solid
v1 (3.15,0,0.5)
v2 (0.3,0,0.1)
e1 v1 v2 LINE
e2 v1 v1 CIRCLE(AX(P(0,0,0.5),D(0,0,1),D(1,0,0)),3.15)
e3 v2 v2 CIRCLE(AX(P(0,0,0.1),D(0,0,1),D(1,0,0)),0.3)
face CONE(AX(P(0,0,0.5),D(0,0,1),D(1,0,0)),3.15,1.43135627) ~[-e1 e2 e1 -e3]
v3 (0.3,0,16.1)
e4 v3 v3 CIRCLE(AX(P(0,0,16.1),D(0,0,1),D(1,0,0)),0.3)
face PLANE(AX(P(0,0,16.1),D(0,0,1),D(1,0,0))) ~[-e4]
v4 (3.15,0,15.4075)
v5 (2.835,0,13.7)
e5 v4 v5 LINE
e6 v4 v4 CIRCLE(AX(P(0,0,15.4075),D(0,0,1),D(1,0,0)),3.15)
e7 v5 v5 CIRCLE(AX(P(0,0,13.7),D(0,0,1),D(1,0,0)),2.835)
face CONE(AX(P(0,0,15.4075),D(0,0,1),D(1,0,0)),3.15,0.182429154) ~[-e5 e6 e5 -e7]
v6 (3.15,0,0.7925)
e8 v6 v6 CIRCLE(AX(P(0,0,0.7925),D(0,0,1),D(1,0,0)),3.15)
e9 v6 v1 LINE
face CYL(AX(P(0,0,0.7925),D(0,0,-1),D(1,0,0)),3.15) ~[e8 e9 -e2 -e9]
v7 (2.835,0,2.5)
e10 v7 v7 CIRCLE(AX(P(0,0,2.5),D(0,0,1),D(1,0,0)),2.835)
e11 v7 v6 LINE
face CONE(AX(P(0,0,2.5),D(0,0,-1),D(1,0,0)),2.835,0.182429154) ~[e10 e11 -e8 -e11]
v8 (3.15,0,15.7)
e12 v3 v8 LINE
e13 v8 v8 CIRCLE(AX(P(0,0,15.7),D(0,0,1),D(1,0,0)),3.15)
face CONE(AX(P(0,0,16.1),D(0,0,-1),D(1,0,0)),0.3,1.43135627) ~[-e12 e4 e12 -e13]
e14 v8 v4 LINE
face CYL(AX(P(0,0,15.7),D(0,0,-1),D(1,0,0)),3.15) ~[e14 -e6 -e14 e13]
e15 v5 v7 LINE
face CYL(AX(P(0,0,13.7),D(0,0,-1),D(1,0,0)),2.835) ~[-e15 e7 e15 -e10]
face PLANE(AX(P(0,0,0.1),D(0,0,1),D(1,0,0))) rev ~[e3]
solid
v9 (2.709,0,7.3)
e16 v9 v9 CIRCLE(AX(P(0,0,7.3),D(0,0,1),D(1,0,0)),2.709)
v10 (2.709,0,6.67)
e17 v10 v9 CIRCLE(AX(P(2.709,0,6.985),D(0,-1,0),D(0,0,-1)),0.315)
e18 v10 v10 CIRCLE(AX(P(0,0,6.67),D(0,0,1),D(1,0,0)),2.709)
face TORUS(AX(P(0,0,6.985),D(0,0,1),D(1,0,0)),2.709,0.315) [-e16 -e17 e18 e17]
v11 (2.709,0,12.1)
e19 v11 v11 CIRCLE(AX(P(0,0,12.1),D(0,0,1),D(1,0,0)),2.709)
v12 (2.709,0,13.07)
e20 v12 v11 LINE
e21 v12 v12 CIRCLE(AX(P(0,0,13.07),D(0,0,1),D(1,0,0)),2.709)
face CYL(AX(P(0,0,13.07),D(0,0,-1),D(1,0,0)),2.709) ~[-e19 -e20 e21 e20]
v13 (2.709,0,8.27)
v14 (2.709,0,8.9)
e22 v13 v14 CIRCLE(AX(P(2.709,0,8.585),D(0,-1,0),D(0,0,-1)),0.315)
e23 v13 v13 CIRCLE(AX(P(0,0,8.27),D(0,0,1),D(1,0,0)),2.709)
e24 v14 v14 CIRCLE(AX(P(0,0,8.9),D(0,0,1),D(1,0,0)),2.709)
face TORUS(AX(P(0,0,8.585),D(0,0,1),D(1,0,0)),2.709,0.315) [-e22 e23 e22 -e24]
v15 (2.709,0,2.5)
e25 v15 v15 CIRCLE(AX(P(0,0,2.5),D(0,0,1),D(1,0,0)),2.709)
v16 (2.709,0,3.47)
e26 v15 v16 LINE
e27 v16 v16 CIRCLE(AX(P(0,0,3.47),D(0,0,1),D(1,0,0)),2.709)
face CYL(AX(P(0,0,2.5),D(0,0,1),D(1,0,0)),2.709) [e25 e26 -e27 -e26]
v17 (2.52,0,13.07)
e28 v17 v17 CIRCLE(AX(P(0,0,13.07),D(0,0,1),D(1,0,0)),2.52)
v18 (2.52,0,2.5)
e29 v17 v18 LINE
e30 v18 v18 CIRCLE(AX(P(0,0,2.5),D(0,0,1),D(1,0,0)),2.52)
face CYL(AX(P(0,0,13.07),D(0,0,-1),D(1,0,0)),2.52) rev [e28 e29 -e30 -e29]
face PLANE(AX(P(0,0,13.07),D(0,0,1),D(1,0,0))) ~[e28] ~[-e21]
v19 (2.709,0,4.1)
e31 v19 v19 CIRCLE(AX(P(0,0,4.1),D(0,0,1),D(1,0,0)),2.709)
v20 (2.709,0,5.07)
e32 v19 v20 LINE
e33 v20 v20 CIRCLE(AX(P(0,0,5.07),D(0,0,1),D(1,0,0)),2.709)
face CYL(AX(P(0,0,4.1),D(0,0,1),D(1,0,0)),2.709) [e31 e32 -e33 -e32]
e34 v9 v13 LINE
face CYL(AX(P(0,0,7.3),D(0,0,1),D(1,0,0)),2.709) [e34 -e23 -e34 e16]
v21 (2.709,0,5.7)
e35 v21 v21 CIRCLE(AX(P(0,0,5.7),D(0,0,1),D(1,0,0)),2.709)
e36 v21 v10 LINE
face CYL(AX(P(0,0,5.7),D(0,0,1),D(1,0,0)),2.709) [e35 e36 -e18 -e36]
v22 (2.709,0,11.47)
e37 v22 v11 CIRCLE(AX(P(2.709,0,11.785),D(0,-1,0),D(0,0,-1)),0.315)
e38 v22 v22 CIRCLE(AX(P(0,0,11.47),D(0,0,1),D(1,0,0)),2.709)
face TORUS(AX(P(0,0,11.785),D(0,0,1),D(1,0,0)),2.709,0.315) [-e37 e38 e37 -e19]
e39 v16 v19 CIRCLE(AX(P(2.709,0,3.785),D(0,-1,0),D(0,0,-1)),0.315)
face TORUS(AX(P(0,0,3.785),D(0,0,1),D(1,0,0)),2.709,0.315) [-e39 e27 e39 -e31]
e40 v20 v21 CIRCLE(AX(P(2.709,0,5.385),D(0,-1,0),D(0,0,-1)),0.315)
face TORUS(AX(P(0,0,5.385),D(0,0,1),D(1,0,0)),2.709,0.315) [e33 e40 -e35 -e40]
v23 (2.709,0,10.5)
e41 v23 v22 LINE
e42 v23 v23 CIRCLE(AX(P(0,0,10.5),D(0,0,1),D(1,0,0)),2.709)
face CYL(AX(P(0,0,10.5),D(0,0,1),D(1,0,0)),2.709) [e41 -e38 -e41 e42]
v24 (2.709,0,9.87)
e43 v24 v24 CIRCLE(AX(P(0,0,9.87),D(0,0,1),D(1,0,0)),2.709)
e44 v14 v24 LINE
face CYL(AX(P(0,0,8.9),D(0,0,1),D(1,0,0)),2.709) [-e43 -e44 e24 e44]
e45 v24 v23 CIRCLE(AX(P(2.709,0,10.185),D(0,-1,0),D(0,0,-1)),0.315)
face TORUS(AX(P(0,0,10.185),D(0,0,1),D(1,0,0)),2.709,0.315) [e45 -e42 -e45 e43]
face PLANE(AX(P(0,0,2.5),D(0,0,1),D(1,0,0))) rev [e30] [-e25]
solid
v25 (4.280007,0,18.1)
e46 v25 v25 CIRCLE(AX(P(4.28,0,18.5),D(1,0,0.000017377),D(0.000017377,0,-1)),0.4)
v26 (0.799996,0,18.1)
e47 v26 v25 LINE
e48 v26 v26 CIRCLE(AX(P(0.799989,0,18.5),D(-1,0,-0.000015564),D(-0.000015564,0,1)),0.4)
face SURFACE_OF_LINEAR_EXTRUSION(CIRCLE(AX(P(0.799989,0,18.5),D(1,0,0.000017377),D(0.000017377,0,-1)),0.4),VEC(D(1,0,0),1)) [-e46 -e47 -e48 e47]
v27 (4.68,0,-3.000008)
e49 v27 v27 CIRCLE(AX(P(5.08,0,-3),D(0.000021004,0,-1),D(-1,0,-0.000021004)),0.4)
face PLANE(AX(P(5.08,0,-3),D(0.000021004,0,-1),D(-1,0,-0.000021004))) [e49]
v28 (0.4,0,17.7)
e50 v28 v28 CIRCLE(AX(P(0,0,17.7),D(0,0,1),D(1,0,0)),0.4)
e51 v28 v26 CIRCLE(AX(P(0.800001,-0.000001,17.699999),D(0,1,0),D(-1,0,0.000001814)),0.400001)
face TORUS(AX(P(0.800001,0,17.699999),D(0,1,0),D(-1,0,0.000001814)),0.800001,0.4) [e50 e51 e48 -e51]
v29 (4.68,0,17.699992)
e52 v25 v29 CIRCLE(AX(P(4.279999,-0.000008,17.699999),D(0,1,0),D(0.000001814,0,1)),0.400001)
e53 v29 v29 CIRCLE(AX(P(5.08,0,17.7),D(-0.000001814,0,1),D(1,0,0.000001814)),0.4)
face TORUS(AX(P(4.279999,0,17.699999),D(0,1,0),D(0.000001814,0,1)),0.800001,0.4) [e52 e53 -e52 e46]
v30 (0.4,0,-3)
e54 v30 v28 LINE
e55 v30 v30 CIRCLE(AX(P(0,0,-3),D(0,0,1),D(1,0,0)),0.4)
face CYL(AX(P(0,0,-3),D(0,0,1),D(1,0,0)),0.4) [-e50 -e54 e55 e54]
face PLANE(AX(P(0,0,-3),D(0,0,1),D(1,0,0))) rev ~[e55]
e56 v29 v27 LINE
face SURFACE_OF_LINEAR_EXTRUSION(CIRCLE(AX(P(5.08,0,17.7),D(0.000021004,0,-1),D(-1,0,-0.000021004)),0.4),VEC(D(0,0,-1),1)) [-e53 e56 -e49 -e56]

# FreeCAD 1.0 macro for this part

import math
import FreeCAD as App
import Part
import Sketcher


def add_polygon(sketch, points):
    """Adds a closed chain of lines whose ends are joined by coincident constraints."""
    first, n = sketch.GeometryCount, len(points)
    for a, b in zip(points, points[1:] + points[:1]):
        sketch.addGeometry(Part.LineSegment(App.Vector(*a, 0), App.Vector(*b, 0)), False)
    for i in range(n):
        sketch.addConstraint(Sketcher.Constraint("Coincident", first + i, 2, first + (i + 1) % n, 1))

doc = App.newDocument("Part")
params = doc.addObject("Spreadsheet::Sheet", "Params")
for row, (alias, value) in enumerate([
    ("sketch1_diameter", "0.8 mm"),
    ("sketch2_radius", "0.800001 mm"),
    ("sketch2_height", "20.7 mm"),
    ("sketch3_height", "16 mm"),
    ("sketch3_width", "0.3 mm"),
    ("sketch3_height2", "11.2 mm"),
    ("revolution_angle", "360 deg"),
    ("revolution2_angle", "360 deg"),
], start=1):
    params.set(f"A{row}", alias)
    params.set(f"B{row}", "=" + value)
    params.setAlias(f"B{row}", alias)

body = doc.addObject("PartDesign::Body", "Body")

# Sketch on XY plane
sketch1 = body.newObject("Sketcher::SketchObject", "Sketch")
sketch1.AttachmentSupport = (doc.getObject("XY_Plane"), [""])
sketch1.MapMode = "FlatFace"
sketch1.AttachmentOffset = App.Placement(App.Vector(0, 0, -2), App.Rotation())
sketch1.addGeometry(Part.Circle(App.Vector(0, 0, 0), App.Vector(0, 0, 1), 0.4), False)
sketch1.addConstraint(Sketcher.Constraint("Coincident", 0, 3, -1, 1))
sketch1.addConstraint(Sketcher.Constraint("Diameter", 0, 0.8))
sketch1.setExpression("Constraints[1]", "Params.sketch1_diameter")

# Sketch on XZ plane
sketch2 = body.newObject("Sketcher::SketchObject", "Sketch001")
sketch2.AttachmentSupport = (doc.getObject("XZ_Plane"), [""])
sketch2.MapMode = "FlatFace"
sketch2.addGeometry(Part.LineSegment(App.Vector(0, -3, 0), App.Vector(0, 17.7, 0)), False)
sketch2.addGeometry(Part.ArcOfCircle(Part.Circle(App.Vector(0.8, 17.7, 0), App.Vector(0, 0, 1), 0.8), math.radians(90), math.radians(180)), False)
sketch2.addGeometry(Part.LineSegment(App.Vector(0.8, 18.5, 0), App.Vector(4.3, 18.5, 0)), False)
sketch2.addGeometry(Part.ArcOfCircle(Part.Circle(App.Vector(4.3, 17.7, 0), App.Vector(0, 0, 1), 0.8), math.radians(0), math.radians(90)), False)
sketch2.addGeometry(Part.LineSegment(App.Vector(5.1, 17.7, 0), App.Vector(5.1, -3, 0)), False)
sketch2.addConstraint(Sketcher.Constraint("Tangent", 0, 2, 1, 2))
sketch2.addConstraint(Sketcher.Constraint("Coincident", 1, 1, 2, 1))
sketch2.addConstraint(Sketcher.Constraint("Tangent", 2, 2, 3, 2))
sketch2.addConstraint(Sketcher.Constraint("Tangent", 3, 1, 4, 1))
sketch2.addConstraint(Sketcher.Constraint("Vertical", 0))
sketch2.addConstraint(Sketcher.Constraint("Horizontal", 2))
sketch2.addConstraint(Sketcher.Constraint("Vertical", 4))
sketch2.addConstraint(Sketcher.Constraint("Equal", 1, 3))
sketch2.addConstraint(Sketcher.Constraint("PointOnObject", 0, 1, -2))
sketch2.addConstraint(Sketcher.Constraint("Horizontal", 0, 1, 4, 2))
sketch2.addConstraint(Sketcher.Constraint("Radius", 1, 0.800001))
sketch2.addConstraint(Sketcher.Constraint("DistanceY", 0, 1, 0, 2, 20.7))
sketch2.addConstraint(Sketcher.Constraint("DistanceY", 0, 1, -1, 1, 3.0))
sketch2.addConstraint(Sketcher.Constraint("DistanceX", -1, 1, 3, 3, 4.279999))
sketch2.addConstraint(Sketcher.Constraint("DistanceX", 2, 1, 2, 2, 3.480011))
sketch2.setExpression("Constraints[10]", "Params.sketch2_radius")
sketch2.setExpression("Constraints[11]", "Params.sketch2_height")
doc.recompute()

additivepipe = body.newObject("PartDesign::AdditivePipe", "AdditivePipe")
additivepipe.Profile = sketch1
additivepipe.Spine = (sketch2, ["Edge1", "Edge2", "Edge3", "Edge4", "Edge5"])
body2 = doc.addObject("PartDesign::Body", "Body001")

# Sketch on XZ plane
sketch3 = body2.newObject("Sketcher::SketchObject", "Sketch002")
sketch3.AttachmentSupport = (doc.getObject("XZ_Plane001"), [""])
sketch3.MapMode = "FlatFace"
add_polygon(sketch3, [(0, 16.1), (0, 0.1), (0.3, 0.1), (3.15, 0.5), (3.15, 0.79), (2.83, 2.5), (2.83, 13.7), (3.15, 15.41), (3.15, 15.7), (0.3, 16.1)])  # lines 0-9
sketch3.addConstraint(Sketcher.Constraint("Vertical", 0))
sketch3.addConstraint(Sketcher.Constraint("Horizontal", 1))
sketch3.addConstraint(Sketcher.Constraint("Vertical", 3))
sketch3.addConstraint(Sketcher.Constraint("Vertical", 5))
sketch3.addConstraint(Sketcher.Constraint("Vertical", 7))
sketch3.addConstraint(Sketcher.Constraint("Horizontal", 9))
sketch3.addConstraint(Sketcher.Constraint("PointOnObject", 0, 2, -2))
sketch3.addConstraint(Sketcher.Constraint("Vertical", 3, 2, 6, 2))
sketch3.addConstraint(Sketcher.Constraint("Vertical", 1, 2, 8, 2))
sketch3.addConstraint(Sketcher.Constraint("Equal", 3, 7))
sketch3.addConstraint(Sketcher.Constraint("Equal", 4, 6))
sketch3.addConstraint(Sketcher.Constraint("Equal", 2, 8))
sketch3.addConstraint(Sketcher.Constraint("DistanceY", 0, 2, 0, 1, 16.0))
sketch3.addConstraint(Sketcher.Constraint("DistanceX", 1, 1, 1, 2, 0.3))
sketch3.addConstraint(Sketcher.Constraint("DistanceY", 5, 1, 5, 2, 11.2))
sketch3.addConstraint(Sketcher.Constraint("DistanceY", 2, 2, 4, 2, 2.0))
sketch3.addConstraint(Sketcher.Constraint("DistanceY", -1, 1, 0, 2, 0.1))
sketch3.addConstraint(Sketcher.Constraint("DistanceX", -1, 1, 2, 2, 3.15))
sketch3.addConstraint(Sketcher.Constraint("DistanceY", 3, 1, 3, 2, 0.2925))
sketch3.addConstraint(Sketcher.Constraint("DistanceX", -1, 1, 4, 2, 2.835))
sketch3.setExpression("Constraints[22]", "Params.sketch3_height")
sketch3.setExpression("Constraints[23]", "Params.sketch3_width")
sketch3.setExpression("Constraints[24]", "Params.sketch3_height2")
revolution = body2.newObject("PartDesign::Revolution", "Revolution")
revolution.Profile = sketch3
revolution.ReferenceAxis = (sketch3, ["V_Axis"])
revolution.setExpression("Angle", "Params.revolution_angle")
body3 = doc.addObject("PartDesign::Body", "Body002")

# Sketch on XZ plane
sketch4 = body3.newObject("Sketcher::SketchObject", "Sketch003")
sketch4.AttachmentSupport = (doc.getObject("XZ_Plane002"), [""])
sketch4.MapMode = "FlatFace"
sketch4.addGeometry(Part.LineSegment(App.Vector(2.52, 13.07, 0), App.Vector(2.52, 2.5, 0)), False)
sketch4.addGeometry(Part.LineSegment(App.Vector(2.52, 2.5, 0), App.Vector(2.71, 2.5, 0)), False)
sketch4.addGeometry(Part.LineSegment(App.Vector(2.71, 2.5, 0), App.Vector(2.71, 3.47, 0)), False)
sketch4.addGeometry(Part.ArcOfCircle(Part.Circle(App.Vector(2.71, 3.79, 0), App.Vector(0, 0, 1), 0.32), math.radians(-90), math.radians(90)), False)
sketch4.addGeometry(Part.LineSegment(App.Vector(2.71, 4.1, 0), App.Vector(2.71, 5.07, 0)), False)
sketch4.addGeometry(Part.ArcOfCircle(Part.Circle(App.Vector(2.71, 5.38, 0), App.Vector(0, 0, 1), 0.32), math.radians(-90), math.radians(90)), False)
sketch4.addGeometry(Part.LineSegment(App.Vector(2.71, 5.7, 0), App.Vector(2.71, 6.67, 0)), False)
sketch4.addGeometry(Part.ArcOfCircle(Part.Circle(App.Vector(2.71, 6.99, 0), App.Vector(0, 0, 1), 0.32), math.radians(-90), math.radians(90)), False)
sketch4.addGeometry(Part.LineSegment(App.Vector(2.71, 7.3, 0), App.Vector(2.71, 8.27, 0)), False)
sketch4.addGeometry(Part.ArcOfCircle(Part.Circle(App.Vector(2.71, 8.59, 0), App.Vector(0, 0, 1), 0.32), math.radians(-90), math.radians(90)), False)
sketch4.addGeometry(Part.LineSegment(App.Vector(2.71, 8.9, 0), App.Vector(2.71, 9.87, 0)), False)
sketch4.addGeometry(Part.ArcOfCircle(Part.Circle(App.Vector(2.71, 10.19, 0), App.Vector(0, 0, 1), 0.32), math.radians(-90), math.radians(90)), False)
sketch4.addGeometry(Part.LineSegment(App.Vector(2.71, 10.5, 0), App.Vector(2.71, 11.47, 0)), False)
sketch4.addGeometry(Part.ArcOfCircle(Part.Circle(App.Vector(2.71, 11.79, 0), App.Vector(0, 0, 1), 0.32), math.radians(-90), math.radians(90)), False)
sketch4.addGeometry(Part.LineSegment(App.Vector(2.71, 12.1, 0), App.Vector(2.71, 13.07, 0)), False)
sketch4.addGeometry(Part.LineSegment(App.Vector(2.71, 13.07, 0), App.Vector(2.52, 13.07, 0)), False)
sketch4.addConstraint(Sketcher.Constraint("Coincident", 0, 2, 1, 1))
sketch4.addConstraint(Sketcher.Constraint("Coincident", 1, 2, 2, 1))
sketch4.addConstraint(Sketcher.Constraint("Coincident", 2, 2, 3, 1))
sketch4.addConstraint(Sketcher.Constraint("Coincident", 3, 2, 4, 1))
sketch4.addConstraint(Sketcher.Constraint("Coincident", 4, 2, 5, 1))
sketch4.addConstraint(Sketcher.Constraint("Coincident", 5, 2, 6, 1))
sketch4.addConstraint(Sketcher.Constraint("Coincident", 6, 2, 7, 1))
sketch4.addConstraint(Sketcher.Constraint("Coincident", 7, 2, 8, 1))
sketch4.addConstraint(Sketcher.Constraint("Coincident", 8, 2, 9, 1))
sketch4.addConstraint(Sketcher.Constraint("Coincident", 9, 2, 10, 1))
sketch4.addConstraint(Sketcher.Constraint("Coincident", 10, 2, 11, 1))
sketch4.addConstraint(Sketcher.Constraint("Coincident", 11, 2, 12, 1))
sketch4.addConstraint(Sketcher.Constraint("Coincident", 12, 2, 13, 1))
sketch4.addConstraint(Sketcher.Constraint("Coincident", 13, 2, 14, 1))
sketch4.addConstraint(Sketcher.Constraint("Coincident", 14, 2, 15, 1))
sketch4.addConstraint(Sketcher.Constraint("Coincident", 15, 2, 0, 1))
sketch4.addConstraint(Sketcher.Constraint("Vertical", 0))
sketch4.addConstraint(Sketcher.Constraint("Horizontal", 1))
sketch4.addConstraint(Sketcher.Constraint("Vertical", 2))
sketch4.addConstraint(Sketcher.Constraint("Vertical", 4))
sketch4.addConstraint(Sketcher.Constraint("Vertical", 6))
sketch4.addConstraint(Sketcher.Constraint("Vertical", 8))
sketch4.addConstraint(Sketcher.Constraint("Vertical", 10))
sketch4.addConstraint(Sketcher.Constraint("Vertical", 12))
sketch4.addConstraint(Sketcher.Constraint("Vertical", 14))
sketch4.addConstraint(Sketcher.Constraint("Horizontal", 15))
sketch4.addConstraint(Sketcher.Constraint("Equal", 3, 5))
sketch4.addConstraint(Sketcher.Constraint("Equal", 5, 7))
sketch4.addConstraint(Sketcher.Constraint("Equal", 7, 9))
sketch4.addConstraint(Sketcher.Constraint("Equal", 9, 11))
sketch4.addConstraint(Sketcher.Constraint("Equal", 11, 13))
sketch4.addConstraint(Sketcher.Constraint("Vertical", 3, 3, 5, 3))
sketch4.addConstraint(Sketcher.Constraint("Vertical", 5, 3, 7, 3))
sketch4.addConstraint(Sketcher.Constraint("Vertical", 7, 3, 9, 3))
sketch4.addConstraint(Sketcher.Constraint("Vertical", 9, 3, 11, 3))
sketch4.addConstraint(Sketcher.Constraint("Vertical", 11, 3, 13, 3))
sketch4.addConstraint(Sketcher.Constraint("Vertical", 13, 3, 1, 2))
sketch4.addConstraint(Sketcher.Constraint("Vertical", 2, 2, 3, 2))
sketch4.addConstraint(Sketcher.Constraint("Vertical", 4, 2, 5, 2))
sketch4.addConstraint(Sketcher.Constraint("Vertical", 6, 2, 7, 2))
sketch4.addConstraint(Sketcher.Constraint("Vertical", 8, 2, 9, 2))
sketch4.addConstraint(Sketcher.Constraint("Vertical", 10, 2, 11, 2))
sketch4.addConstraint(Sketcher.Constraint("Vertical", 12, 2, 13, 2))
sketch4.addConstraint(Sketcher.Constraint("Equal", 2, 4))
sketch4.addConstraint(Sketcher.Constraint("Equal", 4, 6))
sketch4.addConstraint(Sketcher.Constraint("Equal", 6, 8))
sketch4.addConstraint(Sketcher.Constraint("Equal", 8, 10))
sketch4.addConstraint(Sketcher.Constraint("Equal", 10, 12))
sketch4.addConstraint(Sketcher.Constraint("Equal", 12, 14))
sketch4.addConstraint(Sketcher.Constraint("Radius", 3, 0.315))
sketch4.addConstraint(Sketcher.Constraint("DistanceY", 3, 3, 13, 3, 8.0))
sketch4.addConstraint(Sketcher.Constraint("DistanceY", -1, 1, 0, 2, 2.5))
sketch4.addConstraint(Sketcher.Constraint("DistanceX", 1, 1, 1, 2, 0.189))
sketch4.addConstraint(Sketcher.Constraint("DistanceX", -1, 1, 0, 2, 2.52))
revolution2 = body3.newObject("PartDesign::Revolution", "Revolution001")
revolution2.Profile = sketch4
revolution2.ReferenceAxis = (sketch4, ["V_Axis"])
revolution2.setExpression("Angle", "Params.revolution2_angle")

doc.recompute()
